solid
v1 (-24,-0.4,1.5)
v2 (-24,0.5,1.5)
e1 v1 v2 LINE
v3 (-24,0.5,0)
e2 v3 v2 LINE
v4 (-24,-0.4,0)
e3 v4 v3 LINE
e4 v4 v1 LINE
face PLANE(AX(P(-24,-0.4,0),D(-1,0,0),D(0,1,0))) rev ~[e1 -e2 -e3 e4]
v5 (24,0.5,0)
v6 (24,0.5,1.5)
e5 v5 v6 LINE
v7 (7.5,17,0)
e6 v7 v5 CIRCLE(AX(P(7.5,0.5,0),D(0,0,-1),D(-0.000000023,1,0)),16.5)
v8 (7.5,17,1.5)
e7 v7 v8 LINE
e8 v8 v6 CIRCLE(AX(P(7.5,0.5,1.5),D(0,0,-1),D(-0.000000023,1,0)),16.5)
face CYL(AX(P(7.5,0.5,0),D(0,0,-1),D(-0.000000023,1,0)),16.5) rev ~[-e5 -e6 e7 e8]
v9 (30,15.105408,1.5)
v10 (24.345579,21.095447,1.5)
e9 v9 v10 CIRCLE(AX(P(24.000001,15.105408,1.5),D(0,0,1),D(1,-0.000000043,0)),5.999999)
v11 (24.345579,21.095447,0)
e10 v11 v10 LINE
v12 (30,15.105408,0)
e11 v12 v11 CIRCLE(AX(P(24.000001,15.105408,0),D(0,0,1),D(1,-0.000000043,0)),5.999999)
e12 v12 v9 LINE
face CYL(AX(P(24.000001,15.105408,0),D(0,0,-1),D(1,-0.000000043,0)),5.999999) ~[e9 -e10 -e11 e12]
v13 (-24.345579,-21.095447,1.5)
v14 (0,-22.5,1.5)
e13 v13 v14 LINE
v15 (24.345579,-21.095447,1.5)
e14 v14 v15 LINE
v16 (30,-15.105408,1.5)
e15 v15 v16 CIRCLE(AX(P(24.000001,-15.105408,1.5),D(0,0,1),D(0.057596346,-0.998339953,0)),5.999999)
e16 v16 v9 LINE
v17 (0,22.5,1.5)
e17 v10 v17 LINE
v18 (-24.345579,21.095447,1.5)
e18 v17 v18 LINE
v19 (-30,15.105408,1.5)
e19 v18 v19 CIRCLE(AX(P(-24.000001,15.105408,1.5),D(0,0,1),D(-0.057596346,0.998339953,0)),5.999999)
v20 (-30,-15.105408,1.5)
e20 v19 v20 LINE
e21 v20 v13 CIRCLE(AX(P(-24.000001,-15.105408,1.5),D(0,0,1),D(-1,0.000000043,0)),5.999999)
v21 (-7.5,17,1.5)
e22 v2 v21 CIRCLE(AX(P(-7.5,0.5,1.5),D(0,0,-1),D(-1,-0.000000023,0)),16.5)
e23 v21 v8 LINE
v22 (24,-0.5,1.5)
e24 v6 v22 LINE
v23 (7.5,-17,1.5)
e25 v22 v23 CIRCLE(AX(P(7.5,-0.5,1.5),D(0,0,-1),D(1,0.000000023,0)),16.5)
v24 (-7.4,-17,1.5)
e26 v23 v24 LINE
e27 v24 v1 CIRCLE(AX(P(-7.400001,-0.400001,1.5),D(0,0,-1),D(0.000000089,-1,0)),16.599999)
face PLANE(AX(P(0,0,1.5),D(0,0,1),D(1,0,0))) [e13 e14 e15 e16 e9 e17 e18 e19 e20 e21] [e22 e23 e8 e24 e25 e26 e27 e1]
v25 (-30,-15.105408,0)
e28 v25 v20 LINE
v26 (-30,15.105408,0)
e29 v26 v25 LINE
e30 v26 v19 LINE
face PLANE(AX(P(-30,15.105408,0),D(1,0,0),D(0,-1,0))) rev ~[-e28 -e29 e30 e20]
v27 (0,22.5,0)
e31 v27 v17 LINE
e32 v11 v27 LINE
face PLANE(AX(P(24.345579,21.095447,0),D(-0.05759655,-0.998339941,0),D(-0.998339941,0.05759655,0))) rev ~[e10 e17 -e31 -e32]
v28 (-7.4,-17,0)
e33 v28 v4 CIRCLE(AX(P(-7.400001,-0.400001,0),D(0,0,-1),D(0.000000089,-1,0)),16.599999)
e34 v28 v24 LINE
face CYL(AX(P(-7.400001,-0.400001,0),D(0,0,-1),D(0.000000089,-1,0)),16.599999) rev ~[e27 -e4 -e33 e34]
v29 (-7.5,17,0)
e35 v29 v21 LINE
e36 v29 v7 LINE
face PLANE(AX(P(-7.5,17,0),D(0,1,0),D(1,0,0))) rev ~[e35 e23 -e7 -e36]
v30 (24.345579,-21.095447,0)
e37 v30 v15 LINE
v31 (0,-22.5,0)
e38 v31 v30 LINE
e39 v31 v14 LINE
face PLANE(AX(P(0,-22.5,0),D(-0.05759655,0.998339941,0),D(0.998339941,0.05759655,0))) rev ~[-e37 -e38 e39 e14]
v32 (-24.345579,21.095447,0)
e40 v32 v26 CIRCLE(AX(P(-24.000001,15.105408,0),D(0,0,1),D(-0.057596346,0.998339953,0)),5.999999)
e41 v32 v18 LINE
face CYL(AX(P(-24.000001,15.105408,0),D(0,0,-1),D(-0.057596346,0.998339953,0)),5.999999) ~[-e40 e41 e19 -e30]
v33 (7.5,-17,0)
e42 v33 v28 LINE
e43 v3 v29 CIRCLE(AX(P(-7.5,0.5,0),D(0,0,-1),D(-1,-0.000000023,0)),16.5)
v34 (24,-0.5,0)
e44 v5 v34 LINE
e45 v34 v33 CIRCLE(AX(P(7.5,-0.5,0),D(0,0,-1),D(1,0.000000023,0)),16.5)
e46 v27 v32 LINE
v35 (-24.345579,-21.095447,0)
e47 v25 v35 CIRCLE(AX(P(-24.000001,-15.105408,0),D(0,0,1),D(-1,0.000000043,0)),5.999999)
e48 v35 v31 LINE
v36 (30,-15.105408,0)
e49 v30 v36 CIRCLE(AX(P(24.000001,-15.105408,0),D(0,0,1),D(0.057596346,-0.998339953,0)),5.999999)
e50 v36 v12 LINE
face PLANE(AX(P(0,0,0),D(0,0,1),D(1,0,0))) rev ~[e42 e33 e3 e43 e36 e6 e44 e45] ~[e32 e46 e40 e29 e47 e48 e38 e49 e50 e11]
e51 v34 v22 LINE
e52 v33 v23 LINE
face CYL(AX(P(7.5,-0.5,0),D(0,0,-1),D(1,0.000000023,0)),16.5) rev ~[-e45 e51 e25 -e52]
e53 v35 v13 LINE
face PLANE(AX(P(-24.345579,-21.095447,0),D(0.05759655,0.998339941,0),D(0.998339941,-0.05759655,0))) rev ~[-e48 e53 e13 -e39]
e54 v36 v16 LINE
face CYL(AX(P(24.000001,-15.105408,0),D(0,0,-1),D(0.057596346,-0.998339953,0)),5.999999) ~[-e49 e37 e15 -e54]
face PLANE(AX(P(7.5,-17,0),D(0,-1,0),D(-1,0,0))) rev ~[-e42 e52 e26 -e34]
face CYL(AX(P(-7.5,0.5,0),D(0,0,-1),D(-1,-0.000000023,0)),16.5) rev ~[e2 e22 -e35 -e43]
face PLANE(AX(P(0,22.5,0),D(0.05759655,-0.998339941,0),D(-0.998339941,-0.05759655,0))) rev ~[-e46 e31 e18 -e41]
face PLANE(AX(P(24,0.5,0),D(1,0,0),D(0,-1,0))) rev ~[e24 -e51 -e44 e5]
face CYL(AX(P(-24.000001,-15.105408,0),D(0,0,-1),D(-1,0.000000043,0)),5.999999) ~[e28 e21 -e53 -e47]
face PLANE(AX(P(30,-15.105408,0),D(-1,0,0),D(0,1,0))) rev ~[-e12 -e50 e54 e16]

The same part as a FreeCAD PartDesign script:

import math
import FreeCAD as App
import Part
import Sketcher

V = App.Vector

doc = App.newDocument("Part")
body = doc.addObject("PartDesign::Body", "Body")

# Sketch on XY plane
sketch1 = body.newObject("Sketcher::SketchObject", "Sketch")
sketch1.AttachmentSupport = (doc.getObject("XY_Plane"), [""])
sketch1.MapMode = "FlatFace"
sketch1.addGeometry([
    Part.ArcOfCircle(Part.Circle(V(24, -15.1, 0), V(0, 0, 1), 6), math.radians(-87), math.radians(0)),  # 0
    Part.LineSegment(V(30, -15.1, 0), V(30, 15.1, 0)),  # 1
    Part.ArcOfCircle(Part.Circle(V(24, 15.1, 0), V(0, 0, 1), 6), math.radians(0), math.radians(87)),  # 2
    Part.LineSegment(V(24.3, 21.1, 0), V(0, 22.5, 0)),  # 3
    Part.LineSegment(V(0, 22.5, 0), V(-24.3, 21.1, 0)),  # 4
    Part.ArcOfCircle(Part.Circle(V(-24, 15.1, 0), V(0, 0, 1), 6), math.radians(93), math.radians(180)),  # 5
    Part.LineSegment(V(-30, 15.1, 0), V(-30, -15.1, 0)),  # 6
    Part.ArcOfCircle(Part.Circle(V(-24, -15.1, 0), V(0, 0, 1), 6), math.radians(180), math.radians(267)),  # 7
    Part.LineSegment(V(-24.3, -21.1, 0), V(0, -22.5, 0)),  # 8
    Part.LineSegment(V(0, -22.5, 0), V(24.3, -21.1, 0)),  # 9
    Part.LineSegment(V(24, 0.5, 0), V(24, -0.5, 0)),  # 10
    Part.ArcOfCircle(Part.Circle(V(7.5, -0.5, 0), V(0, 0, 1), 16.5), math.radians(-90), math.radians(0)),  # 11
    Part.LineSegment(V(7.5, -17, 0), V(-7.4, -17, 0)),  # 12
    Part.ArcOfCircle(Part.Circle(V(-7.4, -0.4, 0), V(0, 0, 1), 16.6), math.radians(180), math.radians(270)),  # 13
    Part.LineSegment(V(-24, -0.4, 0), V(-24, 0.5, 0)),  # 14
    Part.ArcOfCircle(Part.Circle(V(-7.5, 0.5, 0), V(0, 0, 1), 16.5), math.radians(90), math.radians(180)),  # 15
    Part.LineSegment(V(-7.5, 17, 0), V(7.5, 17, 0)),  # 16
    Part.ArcOfCircle(Part.Circle(V(7.5, 0.5, 0), V(0, 0, 1), 16.5), math.radians(0), math.radians(90)),  # 17
], False)
sketch1.addConstraint([
    Sketcher.Constraint("Tangent", 0, 2, 1, 1),
    Sketcher.Constraint("Tangent", 1, 2, 2, 1),
    Sketcher.Constraint("Tangent", 2, 2, 3, 1),
    Sketcher.Constraint("Coincident", 3, 2, 4, 1),
    Sketcher.Constraint("Tangent", 4, 2, 5, 1),
    Sketcher.Constraint("Tangent", 5, 2, 6, 1),
    Sketcher.Constraint("Tangent", 6, 2, 7, 1),
    Sketcher.Constraint("Tangent", 7, 2, 8, 1),
    Sketcher.Constraint("Coincident", 8, 2, 9, 1),
    Sketcher.Constraint("Tangent", 9, 2, 0, 1),
    Sketcher.Constraint("Tangent", 10, 2, 11, 2),
    Sketcher.Constraint("Tangent", 11, 1, 12, 1),
    Sketcher.Constraint("Tangent", 12, 2, 13, 2),
    Sketcher.Constraint("Tangent", 13, 1, 14, 1),
    Sketcher.Constraint("Tangent", 14, 2, 15, 2),
    Sketcher.Constraint("Tangent", 15, 1, 16, 1),
    Sketcher.Constraint("Tangent", 16, 2, 17, 2),
    Sketcher.Constraint("Tangent", 17, 1, 10, 1),
    Sketcher.Constraint("Vertical", 1),
    Sketcher.Constraint("Vertical", 6),
    Sketcher.Constraint("Vertical", 10),
    Sketcher.Constraint("Horizontal", 12),
    Sketcher.Constraint("Vertical", 14),
    Sketcher.Constraint("Horizontal", 16),
    Sketcher.Constraint("Equal", 0, 2),
    Sketcher.Constraint("Equal", 2, 5),
    Sketcher.Constraint("Equal", 5, 7),
    Sketcher.Constraint("Equal", 11, 15),
    Sketcher.Constraint("Equal", 15, 17),
    Sketcher.Constraint("Symmetric", 0, 3, 5, 3, -1, 1),
    Sketcher.Constraint("Symmetric", 11, 3, 15, 3, -1, 1),
    Sketcher.Constraint("Symmetric", 2, 2, 7, 2, -1, 1),
    Sketcher.Constraint("Symmetric", 2, 2, 4, 2, -2),
    Sketcher.Constraint("PointOnObject", 8, 2, -2),
    Sketcher.Constraint("Vertical", 2, 3, 10, 2),
    Sketcher.Constraint("Radius", 0, 5.999999),
    Sketcher.Constraint("Radius", 11, 16.5),
    Sketcher.Constraint("Radius", 13, 16.599999),
    Sketcher.Constraint("DistanceX", 16, 1, 16, 2, 15.0),
    Sketcher.Constraint("DistanceY", 10, 2, 10, 1, 1.0),
    Sketcher.Constraint("DistanceY", 15, 3, 3, 2, 22.0),
    Sketcher.Constraint("Distance", 3, 24.386061),
])
pad1 = body.newObject("PartDesign::Pad", "Pad")
pad1.Profile = sketch1
pad1.Length = 1.5

doc.recompute()
